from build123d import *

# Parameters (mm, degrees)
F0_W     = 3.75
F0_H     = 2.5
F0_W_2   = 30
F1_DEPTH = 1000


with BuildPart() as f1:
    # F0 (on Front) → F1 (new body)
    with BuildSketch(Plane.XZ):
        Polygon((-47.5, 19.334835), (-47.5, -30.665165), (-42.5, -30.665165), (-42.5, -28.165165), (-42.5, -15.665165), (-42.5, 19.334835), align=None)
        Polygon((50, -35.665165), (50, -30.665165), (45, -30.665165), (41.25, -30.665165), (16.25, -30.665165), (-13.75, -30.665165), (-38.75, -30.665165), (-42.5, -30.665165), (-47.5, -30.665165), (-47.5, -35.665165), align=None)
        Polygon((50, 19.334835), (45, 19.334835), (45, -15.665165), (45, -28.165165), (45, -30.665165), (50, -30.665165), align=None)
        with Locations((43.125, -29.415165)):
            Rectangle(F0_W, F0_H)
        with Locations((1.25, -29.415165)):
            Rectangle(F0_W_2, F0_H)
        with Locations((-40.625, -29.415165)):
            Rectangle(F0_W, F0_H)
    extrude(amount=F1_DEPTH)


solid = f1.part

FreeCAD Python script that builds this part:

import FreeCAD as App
import Part
import Sketcher

V = App.Vector
Q = App.Units.Quantity


def add_polygon(sketch, points):
    """Adds a closed chain of lines whose ends are joined by coincident constraints."""
    first, n = sketch.GeometryCount, len(points)
    for a, b in zip(points, points[1:] + points[:1]):
        sketch.addGeometry(Part.LineSegment(App.Vector(*a, 0), App.Vector(*b, 0)), False)
    for i in range(n):
        sketch.addConstraint(Sketcher.Constraint("Coincident", first + i, 2, first + (i + 1) % n, 1))

doc = App.newDocument("Part")
body = doc.addObject("PartDesign::Body", "Body")

sketch1 = body.newObject("Sketcher::SketchObject", "Sketch")
sketch1.AttachmentSupport = (doc.getObject("XZ_Plane"), [""])
sketch1.MapMode = "FlatFace"
add_polygon(sketch1, [(-47.5, 19.3), (-47.5, -35.7), (50, -35.7), (50, 19.3), (45, 19.3), (45, -28.2), (41.2, -28.2), (41.2, -30.7), (16.2, -30.7), (16.2, -28.2), (-13.8, -28.2), (-13.8, -30.7), (-38.8, -30.7), (-38.8, -28.2), (-42.5, -28.2), (-42.5, 19.3)])
sketch1.addConstraint([
    Sketcher.Constraint("Vertical", 0),
    Sketcher.Constraint("Horizontal", 1),
    Sketcher.Constraint("Vertical", 2),
    Sketcher.Constraint("Horizontal", 3),
    Sketcher.Constraint("Vertical", 4),
    Sketcher.Constraint("Horizontal", 5),
    Sketcher.Constraint("Vertical", 6),
    Sketcher.Constraint("Horizontal", 7),
    Sketcher.Constraint("Vertical", 8),
    Sketcher.Constraint("Horizontal", 9),
    Sketcher.Constraint("Vertical", 10),
    Sketcher.Constraint("Horizontal", 11),
    Sketcher.Constraint("Vertical", 12),
    Sketcher.Constraint("Horizontal", 13),
    Sketcher.Constraint("Vertical", 14),
    Sketcher.Constraint("Horizontal", 15),
    Sketcher.Constraint("Horizontal", 5, 2, 8, 2),
    Sketcher.Constraint("Horizontal", 7, 2, 10, 2),
    Sketcher.Constraint("Horizontal", 9, 2, 12, 2),
    Sketcher.Constraint("Horizontal", 3, 2, 14, 2),
    Sketcher.Constraint("Equal", 7, 11),
    Sketcher.Constraint("Equal", 5, 13),
    Sketcher.Constraint("Equal", 3, 15),
    Sketcher.Constraint("DistanceX", 3, 2, 3, 1, Q("5 mm")),
    Sketcher.Constraint("DistanceX", 7, 2, 7, 1, Q("25 mm")),
    Sketcher.Constraint("DistanceX", 9, 2, 9, 1, Q("30 mm")),
    Sketcher.Constraint("DistanceY", 0, 2, 0, 1, Q("55 mm")),
    Sketcher.Constraint("DistanceX", 1, 1, 1, 2, Q("97.5 mm")),
    Sketcher.Constraint("DistanceY", 4, 2, 4, 1, Q("47.5 mm")),
    Sketcher.Constraint("DistanceY", 6, 2, 6, 1, Q("2.5 mm")),
    Sketcher.Constraint("DistanceX", -1, 1, 1, 2, Q("50 mm")),
    Sketcher.Constraint("DistanceY", 0, 2, -1, 1, Q("35.665165 mm")),
])
pad1 = body.newObject("PartDesign::Pad", "Pad")
pad1.Profile = sketch1
pad1.Length = 1000

doc.recompute()
